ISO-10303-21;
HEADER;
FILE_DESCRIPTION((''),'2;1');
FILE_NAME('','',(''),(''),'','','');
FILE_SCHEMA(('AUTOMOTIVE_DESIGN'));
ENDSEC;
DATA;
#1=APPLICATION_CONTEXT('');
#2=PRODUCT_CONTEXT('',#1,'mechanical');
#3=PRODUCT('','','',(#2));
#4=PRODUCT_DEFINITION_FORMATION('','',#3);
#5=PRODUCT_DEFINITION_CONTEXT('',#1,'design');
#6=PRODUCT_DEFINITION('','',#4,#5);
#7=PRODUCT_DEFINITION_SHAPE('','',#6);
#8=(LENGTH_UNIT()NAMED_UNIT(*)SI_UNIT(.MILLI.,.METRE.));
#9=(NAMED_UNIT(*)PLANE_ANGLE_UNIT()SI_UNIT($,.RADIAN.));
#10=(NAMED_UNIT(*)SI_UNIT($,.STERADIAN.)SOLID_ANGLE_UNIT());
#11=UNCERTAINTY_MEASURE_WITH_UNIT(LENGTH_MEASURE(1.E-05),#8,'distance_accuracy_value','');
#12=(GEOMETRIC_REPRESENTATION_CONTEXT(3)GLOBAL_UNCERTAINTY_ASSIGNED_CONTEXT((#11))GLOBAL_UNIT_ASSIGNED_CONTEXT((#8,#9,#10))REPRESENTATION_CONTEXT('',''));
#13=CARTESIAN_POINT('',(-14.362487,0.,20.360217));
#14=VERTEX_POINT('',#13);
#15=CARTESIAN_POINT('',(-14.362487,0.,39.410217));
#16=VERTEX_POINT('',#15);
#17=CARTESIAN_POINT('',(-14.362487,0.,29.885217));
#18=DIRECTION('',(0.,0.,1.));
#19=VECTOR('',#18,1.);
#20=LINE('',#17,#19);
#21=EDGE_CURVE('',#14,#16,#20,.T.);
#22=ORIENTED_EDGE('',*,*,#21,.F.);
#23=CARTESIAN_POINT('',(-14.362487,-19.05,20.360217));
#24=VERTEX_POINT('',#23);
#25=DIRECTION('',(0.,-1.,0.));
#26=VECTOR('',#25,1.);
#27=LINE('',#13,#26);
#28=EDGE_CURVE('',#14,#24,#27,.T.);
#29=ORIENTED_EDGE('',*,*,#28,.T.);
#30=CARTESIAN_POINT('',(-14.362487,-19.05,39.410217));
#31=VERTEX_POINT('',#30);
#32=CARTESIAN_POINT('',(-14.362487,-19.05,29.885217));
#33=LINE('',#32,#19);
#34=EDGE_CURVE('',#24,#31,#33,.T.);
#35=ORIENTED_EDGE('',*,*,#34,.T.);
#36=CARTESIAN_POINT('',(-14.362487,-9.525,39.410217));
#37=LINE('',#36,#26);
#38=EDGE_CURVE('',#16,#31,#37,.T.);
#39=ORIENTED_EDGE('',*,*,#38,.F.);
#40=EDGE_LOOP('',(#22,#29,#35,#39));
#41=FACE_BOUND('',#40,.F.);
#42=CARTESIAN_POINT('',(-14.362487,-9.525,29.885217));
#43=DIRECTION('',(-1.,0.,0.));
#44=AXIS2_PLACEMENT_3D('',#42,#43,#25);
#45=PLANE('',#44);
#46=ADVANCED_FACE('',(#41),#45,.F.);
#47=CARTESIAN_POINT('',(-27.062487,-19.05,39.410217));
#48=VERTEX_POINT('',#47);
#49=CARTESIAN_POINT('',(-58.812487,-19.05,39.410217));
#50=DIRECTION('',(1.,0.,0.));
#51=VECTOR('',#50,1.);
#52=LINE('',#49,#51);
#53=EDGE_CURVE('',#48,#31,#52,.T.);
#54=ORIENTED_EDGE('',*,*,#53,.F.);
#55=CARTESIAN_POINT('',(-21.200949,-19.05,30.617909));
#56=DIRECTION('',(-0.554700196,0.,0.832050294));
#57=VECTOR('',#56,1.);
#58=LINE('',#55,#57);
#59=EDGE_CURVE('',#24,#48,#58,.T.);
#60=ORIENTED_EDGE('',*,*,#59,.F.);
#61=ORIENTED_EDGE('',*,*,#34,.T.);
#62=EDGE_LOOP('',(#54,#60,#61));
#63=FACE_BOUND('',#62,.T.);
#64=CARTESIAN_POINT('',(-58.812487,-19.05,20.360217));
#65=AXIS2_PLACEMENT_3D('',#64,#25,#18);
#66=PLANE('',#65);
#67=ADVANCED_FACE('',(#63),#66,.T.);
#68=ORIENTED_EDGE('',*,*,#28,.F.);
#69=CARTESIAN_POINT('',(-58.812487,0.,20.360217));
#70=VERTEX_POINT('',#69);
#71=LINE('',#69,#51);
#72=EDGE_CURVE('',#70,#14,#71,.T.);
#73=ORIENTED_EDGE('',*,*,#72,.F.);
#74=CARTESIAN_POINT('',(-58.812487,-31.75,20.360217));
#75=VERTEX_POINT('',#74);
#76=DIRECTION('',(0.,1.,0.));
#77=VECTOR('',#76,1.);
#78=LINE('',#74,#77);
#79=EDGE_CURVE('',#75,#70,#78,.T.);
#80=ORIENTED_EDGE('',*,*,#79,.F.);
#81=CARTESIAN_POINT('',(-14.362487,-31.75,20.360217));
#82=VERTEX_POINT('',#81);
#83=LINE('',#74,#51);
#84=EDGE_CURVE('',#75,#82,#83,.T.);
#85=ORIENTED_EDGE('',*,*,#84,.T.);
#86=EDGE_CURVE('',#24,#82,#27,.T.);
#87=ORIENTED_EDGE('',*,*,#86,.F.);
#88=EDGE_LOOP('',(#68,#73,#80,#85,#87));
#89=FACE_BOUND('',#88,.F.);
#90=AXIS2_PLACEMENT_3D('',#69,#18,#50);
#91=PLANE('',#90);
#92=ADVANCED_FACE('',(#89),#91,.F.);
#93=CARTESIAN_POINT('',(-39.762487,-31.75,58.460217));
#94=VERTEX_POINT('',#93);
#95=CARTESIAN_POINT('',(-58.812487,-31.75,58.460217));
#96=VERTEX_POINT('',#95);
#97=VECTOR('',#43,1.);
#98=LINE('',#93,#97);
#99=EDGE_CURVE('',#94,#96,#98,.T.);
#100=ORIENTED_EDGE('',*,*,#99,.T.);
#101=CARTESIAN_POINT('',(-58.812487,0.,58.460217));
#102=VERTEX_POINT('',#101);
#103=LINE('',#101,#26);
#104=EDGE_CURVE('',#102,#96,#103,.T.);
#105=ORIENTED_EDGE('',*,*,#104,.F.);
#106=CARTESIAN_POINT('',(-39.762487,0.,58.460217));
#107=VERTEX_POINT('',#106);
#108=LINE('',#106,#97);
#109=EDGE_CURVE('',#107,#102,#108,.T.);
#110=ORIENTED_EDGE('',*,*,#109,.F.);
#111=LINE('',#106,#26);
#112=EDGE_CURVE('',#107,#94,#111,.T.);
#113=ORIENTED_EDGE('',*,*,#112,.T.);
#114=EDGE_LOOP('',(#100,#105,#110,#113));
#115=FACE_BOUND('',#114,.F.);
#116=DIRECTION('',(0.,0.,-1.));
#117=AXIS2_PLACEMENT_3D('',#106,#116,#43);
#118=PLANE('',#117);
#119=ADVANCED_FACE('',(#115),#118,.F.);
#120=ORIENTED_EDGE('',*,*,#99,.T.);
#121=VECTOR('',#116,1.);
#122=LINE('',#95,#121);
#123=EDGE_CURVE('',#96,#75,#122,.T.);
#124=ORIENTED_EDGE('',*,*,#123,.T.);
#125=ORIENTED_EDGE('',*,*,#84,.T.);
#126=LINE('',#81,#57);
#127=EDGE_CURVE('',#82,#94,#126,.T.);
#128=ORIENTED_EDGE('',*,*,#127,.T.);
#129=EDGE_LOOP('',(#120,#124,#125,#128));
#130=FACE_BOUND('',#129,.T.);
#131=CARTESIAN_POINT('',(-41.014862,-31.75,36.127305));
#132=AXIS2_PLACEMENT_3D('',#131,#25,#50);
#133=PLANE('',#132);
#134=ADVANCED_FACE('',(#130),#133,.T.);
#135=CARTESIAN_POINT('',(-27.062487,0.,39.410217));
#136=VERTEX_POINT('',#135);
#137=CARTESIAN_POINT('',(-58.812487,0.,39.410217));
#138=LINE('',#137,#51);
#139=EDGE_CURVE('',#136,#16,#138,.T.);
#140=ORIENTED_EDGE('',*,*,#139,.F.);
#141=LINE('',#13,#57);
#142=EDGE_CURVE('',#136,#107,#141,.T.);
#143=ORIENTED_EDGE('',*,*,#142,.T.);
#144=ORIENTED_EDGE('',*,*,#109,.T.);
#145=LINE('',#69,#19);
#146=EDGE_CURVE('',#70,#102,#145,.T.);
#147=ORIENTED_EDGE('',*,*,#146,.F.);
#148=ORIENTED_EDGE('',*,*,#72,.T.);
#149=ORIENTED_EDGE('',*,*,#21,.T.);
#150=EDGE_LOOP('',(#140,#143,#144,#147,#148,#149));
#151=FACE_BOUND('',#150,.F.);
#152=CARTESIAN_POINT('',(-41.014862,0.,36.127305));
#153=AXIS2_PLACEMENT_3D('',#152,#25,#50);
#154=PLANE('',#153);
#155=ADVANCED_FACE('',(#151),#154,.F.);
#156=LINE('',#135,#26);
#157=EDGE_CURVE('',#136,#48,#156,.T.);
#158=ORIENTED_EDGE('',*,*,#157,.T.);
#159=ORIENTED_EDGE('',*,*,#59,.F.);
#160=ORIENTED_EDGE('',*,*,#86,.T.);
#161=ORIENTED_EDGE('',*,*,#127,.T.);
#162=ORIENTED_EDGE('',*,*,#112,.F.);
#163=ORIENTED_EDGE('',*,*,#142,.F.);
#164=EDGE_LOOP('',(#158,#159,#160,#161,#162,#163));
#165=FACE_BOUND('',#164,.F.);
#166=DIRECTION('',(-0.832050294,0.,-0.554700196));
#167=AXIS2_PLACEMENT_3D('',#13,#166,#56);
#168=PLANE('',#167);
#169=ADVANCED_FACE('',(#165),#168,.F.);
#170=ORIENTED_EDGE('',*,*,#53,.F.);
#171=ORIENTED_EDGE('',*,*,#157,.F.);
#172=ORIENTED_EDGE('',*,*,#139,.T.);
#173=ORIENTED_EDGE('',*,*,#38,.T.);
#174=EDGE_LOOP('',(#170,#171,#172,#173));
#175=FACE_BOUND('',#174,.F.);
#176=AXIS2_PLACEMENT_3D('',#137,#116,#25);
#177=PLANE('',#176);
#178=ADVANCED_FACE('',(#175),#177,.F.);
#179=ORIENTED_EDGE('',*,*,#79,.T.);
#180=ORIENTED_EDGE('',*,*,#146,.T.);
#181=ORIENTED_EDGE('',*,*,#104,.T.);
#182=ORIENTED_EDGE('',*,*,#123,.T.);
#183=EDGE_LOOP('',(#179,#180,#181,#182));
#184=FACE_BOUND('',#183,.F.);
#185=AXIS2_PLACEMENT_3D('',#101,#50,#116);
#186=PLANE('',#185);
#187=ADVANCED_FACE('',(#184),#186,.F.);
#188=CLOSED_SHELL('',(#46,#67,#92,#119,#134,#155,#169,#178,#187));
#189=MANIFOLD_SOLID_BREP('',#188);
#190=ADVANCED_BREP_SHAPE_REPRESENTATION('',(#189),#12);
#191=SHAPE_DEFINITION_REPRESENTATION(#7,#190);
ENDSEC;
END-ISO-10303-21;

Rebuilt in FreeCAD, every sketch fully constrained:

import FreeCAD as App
import Part
import Sketcher
from FreeCAD import Vector
Q = App.Units.Quantity

doc = App.newDocument("Part")
body = doc.addObject("PartDesign::Body", "Body")

sketch1 = body.newObject("Sketcher::SketchObject", "Sketch")
sketch1.AttachmentSupport = (doc.getObject("XZ_Plane"), [""])
sketch1.MapMode = "FlatFace"
sketch1.addGeometry([
    Part.LineSegment(Vector(-39.762487, 58.460217, 0), Vector(-58.812487, 58.460217, 0)),
    Part.LineSegment(Vector(-58.812487, 58.460217, 0), Vector(-58.812487, 20.360217, 0)),
    Part.LineSegment(Vector(-58.812487, 20.360217, 0), Vector(-14.362487, 20.360217, 0)),
    Part.LineSegment(Vector(-14.362487, 20.360217, 0), Vector(-39.762487, 58.460217, 0)),
], False)
sketch1.addConstraint([
    Sketcher.Constraint("Coincident", 0, 2, 1, 1),
    Sketcher.Constraint("Coincident", 1, 2, 2, 1),
    Sketcher.Constraint("Coincident", 2, 2, 3, 1),
    Sketcher.Constraint("Coincident", 3, 2, 0, 1),
    Sketcher.Constraint("Horizontal", 0),
    Sketcher.Constraint("Vertical", 1),
    Sketcher.Constraint("Horizontal", 2),
    Sketcher.Constraint("DistanceY", 1, 2, 1, 1, Q("1.5 in")),
    Sketcher.Constraint("DistanceX", 3, 2, 2, 2, Q("1 in")),
    Sketcher.Constraint("DistanceX", 0, 2, 0, 1, Q("0.75 in")),
    Sketcher.Constraint("DistanceX", 0, 2, -1, 1, Q("58.812487 mm")),
    Sketcher.Constraint("DistanceY", -1, 1, 0, 2, Q("58.460217 mm")),
])
pad1 = body.newObject("PartDesign::Pad", "Pad")
pad1.Profile = sketch1
pad1.Length = Q("1.25 in")

sketch2 = body.newObject("Sketcher::SketchObject", "Sketch001")
sketch2.AttachmentSupport = (doc.getObject("YZ_Plane"), [""])
sketch2.MapMode = "FlatFace"
sketch2.AttachmentOffset = App.Placement(Vector(0, 0, -58.812487), App.Rotation())
sketch2.addGeometry([
    Part.LineSegment(Vector(0, 39.410217, 0), Vector(0, 20.360217, 0)),
    Part.LineSegment(Vector(0, 20.360217, 0), Vector(-19.05, 20.360217, 0)),
    Part.LineSegment(Vector(-19.05, 20.360217, 0), Vector(-19.05, 39.410217, 0)),
    Part.LineSegment(Vector(-19.05, 39.410217, 0), Vector(0, 39.410217, 0)),
], False)
sketch2.addConstraint([
    Sketcher.Constraint("Coincident", 0, 2, 1, 1),
    Sketcher.Constraint("Coincident", 1, 2, 2, 1),
    Sketcher.Constraint("Coincident", 2, 2, 3, 1),
    Sketcher.Constraint("Coincident", 3, 2, 0, 1),
    Sketcher.Constraint("Vertical", 0),
    Sketcher.Constraint("Horizontal", 1),
    Sketcher.Constraint("Vertical", 2),
    Sketcher.Constraint("Horizontal", 3),
    Sketcher.Constraint("PointOnObject", 0, 2, -2),
    Sketcher.Constraint("Equal", 3, 0),
    Sketcher.Constraint("DistanceX", 1, 2, 1, 1, Q("0.75 in")),
    Sketcher.Constraint("DistanceY", -1, 1, 0, 2, Q("20.360217 mm")),
])
pad2 = body.newObject("PartDesign::Pad", "Pad001")
pad2.Profile = sketch2
pad2.Length = Q("1.75 in")

doc.recompute()
